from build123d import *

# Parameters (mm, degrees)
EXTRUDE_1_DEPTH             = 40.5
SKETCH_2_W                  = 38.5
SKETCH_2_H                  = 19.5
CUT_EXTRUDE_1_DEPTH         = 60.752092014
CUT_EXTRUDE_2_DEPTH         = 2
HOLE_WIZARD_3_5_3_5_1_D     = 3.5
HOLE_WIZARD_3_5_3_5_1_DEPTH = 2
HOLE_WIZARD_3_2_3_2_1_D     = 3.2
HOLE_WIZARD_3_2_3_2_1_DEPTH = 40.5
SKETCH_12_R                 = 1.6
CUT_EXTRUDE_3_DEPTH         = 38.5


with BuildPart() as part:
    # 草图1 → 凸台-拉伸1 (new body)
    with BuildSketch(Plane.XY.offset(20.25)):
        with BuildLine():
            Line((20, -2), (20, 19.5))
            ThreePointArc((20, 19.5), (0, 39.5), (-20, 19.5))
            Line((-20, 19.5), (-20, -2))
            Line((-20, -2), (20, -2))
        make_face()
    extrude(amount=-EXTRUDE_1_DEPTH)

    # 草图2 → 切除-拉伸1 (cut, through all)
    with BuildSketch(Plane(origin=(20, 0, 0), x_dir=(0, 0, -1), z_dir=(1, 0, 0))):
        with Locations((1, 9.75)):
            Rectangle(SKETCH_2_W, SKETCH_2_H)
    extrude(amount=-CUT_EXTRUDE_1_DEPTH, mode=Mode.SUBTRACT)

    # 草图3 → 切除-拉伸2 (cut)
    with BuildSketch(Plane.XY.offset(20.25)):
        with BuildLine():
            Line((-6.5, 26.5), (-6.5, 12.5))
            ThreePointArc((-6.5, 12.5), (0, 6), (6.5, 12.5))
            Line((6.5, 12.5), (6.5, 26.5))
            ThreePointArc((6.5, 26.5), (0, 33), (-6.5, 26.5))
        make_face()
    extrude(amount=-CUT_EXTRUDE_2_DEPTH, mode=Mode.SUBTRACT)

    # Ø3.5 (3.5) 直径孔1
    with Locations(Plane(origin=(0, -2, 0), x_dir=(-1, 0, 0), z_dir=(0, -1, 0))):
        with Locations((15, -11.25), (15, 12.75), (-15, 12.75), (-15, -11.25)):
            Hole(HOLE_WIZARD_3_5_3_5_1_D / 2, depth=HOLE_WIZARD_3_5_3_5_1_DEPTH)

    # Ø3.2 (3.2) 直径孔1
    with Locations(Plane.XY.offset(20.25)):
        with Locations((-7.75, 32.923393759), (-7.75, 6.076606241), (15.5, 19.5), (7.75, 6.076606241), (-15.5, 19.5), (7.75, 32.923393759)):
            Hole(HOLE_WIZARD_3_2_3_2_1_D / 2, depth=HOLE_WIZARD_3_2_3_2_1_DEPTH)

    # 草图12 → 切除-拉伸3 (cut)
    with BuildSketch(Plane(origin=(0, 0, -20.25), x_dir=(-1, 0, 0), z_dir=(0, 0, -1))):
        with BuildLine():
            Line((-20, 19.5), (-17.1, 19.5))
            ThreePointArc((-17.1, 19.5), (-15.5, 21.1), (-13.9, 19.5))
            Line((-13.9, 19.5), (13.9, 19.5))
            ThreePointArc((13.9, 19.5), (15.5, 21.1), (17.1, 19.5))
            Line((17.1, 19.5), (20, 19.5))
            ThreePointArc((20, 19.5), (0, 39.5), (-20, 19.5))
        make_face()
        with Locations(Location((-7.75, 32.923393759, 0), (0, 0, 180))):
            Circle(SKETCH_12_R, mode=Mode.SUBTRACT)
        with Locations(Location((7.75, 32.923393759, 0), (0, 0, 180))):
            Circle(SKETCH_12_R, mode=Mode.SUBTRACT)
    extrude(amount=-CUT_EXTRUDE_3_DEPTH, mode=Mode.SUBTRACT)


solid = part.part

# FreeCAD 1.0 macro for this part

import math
import FreeCAD as App
import Part
import Sketcher

V = App.Vector


def add_polygon(sketch, points):
    """Adds a closed chain of lines whose ends are joined by coincident constraints."""
    first, n = sketch.GeometryCount, len(points)
    for a, b in zip(points, points[1:] + points[:1]):
        sketch.addGeometry(Part.LineSegment(App.Vector(*a, 0), App.Vector(*b, 0)), False)
    for i in range(n):
        sketch.addConstraint(Sketcher.Constraint("Coincident", first + i, 2, first + (i + 1) % n, 1))

doc = App.newDocument("Part")
params = doc.addObject("Spreadsheet::Sheet", "Params")
for row, (alias, value) in enumerate([
    ("sketch1_radius", "20 mm"),
    ("sketch1_height", "21.5 mm"),
    ("pad1_length", "40.5 mm"),
    ("sketch2_width", "19.5 mm"),
    ("sketch2_height", "38.5 mm"),
    ("sketch3_radius", "6.5 mm"),
    ("sketch3_height", "14 mm"),
    ("pocket2_length", "2 mm"),
    ("sketch4_diameter", "3.5 mm"),
    ("hole_diameter", "3.5 mm"),
    ("hole_depth", "2 mm"),
    ("sketch5_diameter", "3.2 mm"),
    ("hole2_diameter", "3.2 mm"),
    ("hole2_depth", "40.5 mm"),
    ("sketch6_radius", "20 mm"),
    ("sketch6_diameter", "3.2 mm"),
    ("sketch6_width", "2.9 mm"),
    ("pocket3_length", "38.5 mm"),
], start=1):
    params.set(f"A{row}", alias)
    params.set(f"B{row}", "=" + value)
    params.setAlias(f"B{row}", alias)

body = doc.addObject("PartDesign::Body", "Body")

# Sketch on XY plane
sketch1 = body.newObject("Sketcher::SketchObject", "Sketch")
sketch1.AttachmentSupport = (doc.getObject("XY_Plane"), [""])
sketch1.MapMode = "FlatFace"
sketch1.AttachmentOffset = App.Placement(V(0, 0, 20.25), App.Rotation())
sketch1.addGeometry([
    Part.LineSegment(V(20, -2, 0), V(20, 20, 0)),
    Part.ArcOfCircle(Part.Circle(V(0, 20, 0), V(0, 0, 1), 20), math.radians(0), math.radians(180)),
    Part.LineSegment(V(-20, 20, 0), V(-20, -2, 0)),
    Part.LineSegment(V(-20, -2, 0), V(20, -2, 0)),
], False)
sketch1.addConstraint([
    Sketcher.Constraint("Tangent", 0, 2, 1, 1),
    Sketcher.Constraint("Tangent", 1, 2, 2, 1),
    Sketcher.Constraint("Coincident", 2, 2, 3, 1),
    Sketcher.Constraint("Coincident", 3, 2, 0, 1),
    Sketcher.Constraint("Vertical", 0),
    Sketcher.Constraint("Vertical", 2),
    Sketcher.Constraint("Horizontal", 3),
    Sketcher.Constraint("PointOnObject", 1, 3, -2),
    Sketcher.Constraint("Radius", 1, 20.0),
    Sketcher.Constraint("DistanceY", 0, 1, 0, 2, 21.5),
    Sketcher.Constraint("DistanceY", 2, 2, -1, 1, 2.0),
])
sketch1.setExpression("Constraints[8]", "Params.sketch1_radius")
sketch1.setExpression("Constraints[9]", "Params.sketch1_height")
pad1 = body.newObject("PartDesign::Pad", "Pad")
pad1.Profile = sketch1
pad1.setExpression("Length", "Params.pad1_length")
pad1.Reversed = True

# Sketch on YZ plane
sketch2 = body.newObject("Sketcher::SketchObject", "Sketch001")
sketch2.AttachmentSupport = (doc.getObject("YZ_Plane"), [""])
sketch2.MapMode = "FlatFace"
sketch2.AttachmentOffset = App.Placement(V(0, 0, 20), App.Rotation())
add_polygon(sketch2, [(20, 18), (0, 18), (0, -20), (20, -20)])  # lines 0-3
sketch2.addConstraint([
    Sketcher.Constraint("Horizontal", 0),
    Sketcher.Constraint("Vertical", 1),
    Sketcher.Constraint("Horizontal", 2),
    Sketcher.Constraint("Vertical", 3),
    Sketcher.Constraint("PointOnObject", 0, 2, -2),
    Sketcher.Constraint("DistanceX", 0, 2, 0, 1, 19.5),
    Sketcher.Constraint("DistanceY", 1, 2, 1, 1, 38.5),
    Sketcher.Constraint("DistanceY", -1, 1, 0, 2, 18.25),
])
sketch2.setExpression("Constraints[9]", "Params.sketch2_width")
sketch2.setExpression("Constraints[10]", "Params.sketch2_height")
pocket1 = body.newObject("PartDesign::Pocket", "Pocket")
pocket1.Profile = sketch2
pocket1.Type = "ThroughAll"

# Sketch on XY plane
sketch3 = body.newObject("Sketcher::SketchObject", "Sketch002")
sketch3.AttachmentSupport = (doc.getObject("XY_Plane"), [""])
sketch3.MapMode = "FlatFace"
sketch3.AttachmentOffset = App.Placement(V(0, 0, 20.25), App.Rotation())
sketch3.addGeometry([
    Part.LineSegment(V(-6, 26, 0), V(-6, 12, 0)),
    Part.ArcOfCircle(Part.Circle(V(0, 12, 0), V(0, 0, 1), 6), math.radians(180), math.radians(360)),
    Part.LineSegment(V(6, 12, 0), V(6, 26, 0)),
    Part.ArcOfCircle(Part.Circle(V(0, 26, 0), V(0, 0, 1), 6), math.radians(0), math.radians(180)),
], False)
sketch3.addConstraint([
    Sketcher.Constraint("Tangent", 0, 2, 1, 1),
    Sketcher.Constraint("Tangent", 1, 2, 2, 1),
    Sketcher.Constraint("Tangent", 2, 2, 3, 1),
    Sketcher.Constraint("Tangent", 3, 2, 0, 1),
    Sketcher.Constraint("Vertical", 0),
    Sketcher.Constraint("Vertical", 2),
    Sketcher.Constraint("PointOnObject", 1, 3, -2),
    Sketcher.Constraint("Radius", 1, 6.5),
    Sketcher.Constraint("DistanceY", 0, 2, 0, 1, 14.0),
    Sketcher.Constraint("DistanceY", -1, 1, 1, 3, 12.5),
])
sketch3.setExpression("Constraints[7]", "Params.sketch3_radius")
sketch3.setExpression("Constraints[8]", "Params.sketch3_height")
pocket2 = body.newObject("PartDesign::Pocket", "Pocket001")
pocket2.Profile = sketch3
pocket2.setExpression("Length", "Params.pocket2_length")

# Sketch on XZ plane
sketch4 = body.newObject("Sketcher::SketchObject", "Sketch003")
sketch4.AttachmentSupport = (doc.getObject("XZ_Plane"), [""])
sketch4.MapMode = "FlatFace"
sketch4.AttachmentOffset = App.Placement(V(0, 0, 2), App.Rotation())
sketch4.addGeometry([
    Part.Circle(V(-15, 11.2, 0), V(0, 0, 1), 1.8),
    Part.Circle(V(-15, -12.8, 0), V(0, 0, 1), 1.8),
    Part.Circle(V(15, -12.8, 0), V(0, 0, 1), 1.8),
    Part.Circle(V(15, 11.2, 0), V(0, 0, 1), 1.8),
], False)
sketch4.addConstraint([
    Sketcher.Constraint("Equal", 0, 1),
    Sketcher.Constraint("Equal", 1, 2),
    Sketcher.Constraint("Equal", 2, 3),
    Sketcher.Constraint("Symmetric", 1, 3, 2, 3, -2),
    Sketcher.Constraint("Symmetric", 0, 3, 3, 3, -2),
    Sketcher.Constraint("Vertical", 0, 3, 1, 3),
    Sketcher.Constraint("Diameter", 0, 3.5),
    Sketcher.Constraint("DistanceX", 0, 3, -1, 1, 15.0),
    Sketcher.Constraint("DistanceY", 1, 3, 0, 3, 24.0),
    Sketcher.Constraint("DistanceY", -1, 1, 0, 3, 11.25),
])
sketch4.setExpression("Constraints[6]", "Params.sketch4_diameter")
doc.recompute()
hole = body.newObject("PartDesign::Hole", "Hole")
hole.Profile = sketch4
hole.ThreadType = "None"
hole.setExpression("Diameter", "Params.hole_diameter")
hole.DepthType = "Dimension"
hole.setExpression("Depth", "Params.hole_depth")
hole.DrillPoint = "Flat"

# Sketch on XY plane
sketch5 = body.newObject("Sketcher::SketchObject", "Sketch004")
sketch5.AttachmentSupport = (doc.getObject("XY_Plane"), [""])
sketch5.MapMode = "FlatFace"
sketch5.AttachmentOffset = App.Placement(V(0, 0, 20.25), App.Rotation())
sketch5.addGeometry([
    Part.Circle(V(-7.8, 32.9, 0), V(0, 0, 1), 1.6),  # 0
    Part.Circle(V(-7.8, 6.1, 0), V(0, 0, 1), 1.6),  # 1
    Part.Circle(V(15.5, 19.5, 0), V(0, 0, 1), 1.6),  # 2
    Part.Circle(V(7.8, 6.1, 0), V(0, 0, 1), 1.6),  # 3
    Part.Circle(V(-15.5, 19.5, 0), V(0, 0, 1), 1.6),  # 4
    Part.Circle(V(7.8, 32.9, 0), V(0, 0, 1), 1.6),  # 5
], False)
sketch5.addConstraint([
    Sketcher.Constraint("Equal", 0, 1),
    Sketcher.Constraint("Equal", 1, 2),
    Sketcher.Constraint("Equal", 2, 3),
    Sketcher.Constraint("Equal", 3, 4),
    Sketcher.Constraint("Equal", 4, 5),
    Sketcher.Constraint("Symmetric", 1, 3, 3, 3, -2),
    Sketcher.Constraint("Symmetric", 2, 3, 4, 3, -2),
    Sketcher.Constraint("Symmetric", 0, 3, 5, 3, -2),
    Sketcher.Constraint("Vertical", 0, 3, 1, 3),
    Sketcher.Constraint("Diameter", 0, 3.2),
    Sketcher.Constraint("DistanceX", 4, 3, 2, 3, 31.0),
    Sketcher.Constraint("DistanceY", -1, 1, 2, 3, 19.5),
    Sketcher.Constraint("DistanceX", 1, 3, 3, 3, 15.5),
    Sketcher.Constraint("DistanceY", -1, 1, 0, 3, 32.923394),
    Sketcher.Constraint("DistanceY", -1, 1, 1, 3, 6.076606),
])
sketch5.setExpression("Constraints[9]", "Params.sketch5_diameter")
doc.recompute()
hole2 = body.newObject("PartDesign::Hole", "Hole001")
hole2.Profile = sketch5
hole2.ThreadType = "None"
hole2.setExpression("Diameter", "Params.hole2_diameter")
hole2.DepthType = "Dimension"
hole2.setExpression("Depth", "Params.hole2_depth")
hole2.DrillPoint = "Flat"

# Sketch on XY plane
sketch6 = body.newObject("Sketcher::SketchObject", "Sketch005")
sketch6.AttachmentSupport = (doc.getObject("XY_Plane"), [""])
sketch6.MapMode = "FlatFace"
sketch6.AttachmentOffset = App.Placement(V(0, 0, -20.25), App.Rotation())
sketch6.addGeometry([
    Part.LineSegment(V(20, 19.5, 0), V(17.1, 19.5, 0)),  # 0
    Part.ArcOfCircle(Part.Circle(V(15.5, 19.5, 0), V(0, 0, 1), 1.6), math.radians(0), math.radians(180)),  # 1
    Part.LineSegment(V(13.9, 19.5, 0), V(-13.9, 19.5, 0)),  # 2
    Part.ArcOfCircle(Part.Circle(V(-15.5, 19.5, 0), V(0, 0, 1), 1.6), math.radians(0), math.radians(180)),  # 3
    Part.LineSegment(V(-17.1, 19.5, 0), V(-20, 19.5, 0)),  # 4
    Part.ArcOfCircle(Part.Circle(V(0, 19.5, 0), V(0, 0, 1), 20), math.radians(0), math.radians(180)),  # 5
    Part.Circle(V(7.8, 32.9, 0), V(0, 0, 1), 1.6),  # 6
    Part.Circle(V(-7.8, 32.9, 0), V(0, 0, 1), 1.6),  # 7
], False)
sketch6.addConstraint([
    Sketcher.Constraint("Coincident", 0, 2, 1, 1),
    Sketcher.Constraint("Coincident", 1, 2, 2, 1),
    Sketcher.Constraint("Coincident", 2, 2, 3, 1),
    Sketcher.Constraint("Coincident", 3, 2, 4, 1),
    Sketcher.Constraint("Coincident", 4, 2, 5, 2),
    Sketcher.Constraint("Coincident", 5, 1, 0, 1),
    Sketcher.Constraint("Horizontal", 0),
    Sketcher.Constraint("Horizontal", 2),
    Sketcher.Constraint("Horizontal", 4),
    Sketcher.Constraint("Equal", 1, 3),
    Sketcher.Constraint("Equal", 3, 6),
    Sketcher.Constraint("Equal", 6, 7),
    Sketcher.Constraint("Symmetric", 1, 3, 3, 3, -2),
    Sketcher.Constraint("Symmetric", 6, 3, 7, 3, -2),
    Sketcher.Constraint("Symmetric", 4, 2, 5, 1, -2),
    Sketcher.Constraint("Horizontal", 3, 3, 5, 3),
    Sketcher.Constraint("Horizontal", 5, 3, 0, 2),
    Sketcher.Constraint("Horizontal", 0, 2, 1, 2),
    Sketcher.Constraint("Radius", 5, 20.0),
    Sketcher.Constraint("Diameter", 6, 3.2),
    Sketcher.Constraint("DistanceX", 0, 2, 0, 1, 2.9),
    Sketcher.Constraint("DistanceY", -1, 1, 1, 3, 19.5),
    Sketcher.Constraint("DistanceX", 7, 3, 6, 3, 15.5),
    Sketcher.Constraint("DistanceY", -1, 1, 6, 3, 32.923394),
])
sketch6.setExpression("Constraints[18]", "Params.sketch6_radius")
sketch6.setExpression("Constraints[19]", "Params.sketch6_diameter")
sketch6.setExpression("Constraints[20]", "Params.sketch6_width")
pocket3 = body.newObject("PartDesign::Pocket", "Pocket002")
pocket3.Profile = sketch6
pocket3.setExpression("Length", "Params.pocket3_length")
pocket3.Reversed = True

doc.recompute()
